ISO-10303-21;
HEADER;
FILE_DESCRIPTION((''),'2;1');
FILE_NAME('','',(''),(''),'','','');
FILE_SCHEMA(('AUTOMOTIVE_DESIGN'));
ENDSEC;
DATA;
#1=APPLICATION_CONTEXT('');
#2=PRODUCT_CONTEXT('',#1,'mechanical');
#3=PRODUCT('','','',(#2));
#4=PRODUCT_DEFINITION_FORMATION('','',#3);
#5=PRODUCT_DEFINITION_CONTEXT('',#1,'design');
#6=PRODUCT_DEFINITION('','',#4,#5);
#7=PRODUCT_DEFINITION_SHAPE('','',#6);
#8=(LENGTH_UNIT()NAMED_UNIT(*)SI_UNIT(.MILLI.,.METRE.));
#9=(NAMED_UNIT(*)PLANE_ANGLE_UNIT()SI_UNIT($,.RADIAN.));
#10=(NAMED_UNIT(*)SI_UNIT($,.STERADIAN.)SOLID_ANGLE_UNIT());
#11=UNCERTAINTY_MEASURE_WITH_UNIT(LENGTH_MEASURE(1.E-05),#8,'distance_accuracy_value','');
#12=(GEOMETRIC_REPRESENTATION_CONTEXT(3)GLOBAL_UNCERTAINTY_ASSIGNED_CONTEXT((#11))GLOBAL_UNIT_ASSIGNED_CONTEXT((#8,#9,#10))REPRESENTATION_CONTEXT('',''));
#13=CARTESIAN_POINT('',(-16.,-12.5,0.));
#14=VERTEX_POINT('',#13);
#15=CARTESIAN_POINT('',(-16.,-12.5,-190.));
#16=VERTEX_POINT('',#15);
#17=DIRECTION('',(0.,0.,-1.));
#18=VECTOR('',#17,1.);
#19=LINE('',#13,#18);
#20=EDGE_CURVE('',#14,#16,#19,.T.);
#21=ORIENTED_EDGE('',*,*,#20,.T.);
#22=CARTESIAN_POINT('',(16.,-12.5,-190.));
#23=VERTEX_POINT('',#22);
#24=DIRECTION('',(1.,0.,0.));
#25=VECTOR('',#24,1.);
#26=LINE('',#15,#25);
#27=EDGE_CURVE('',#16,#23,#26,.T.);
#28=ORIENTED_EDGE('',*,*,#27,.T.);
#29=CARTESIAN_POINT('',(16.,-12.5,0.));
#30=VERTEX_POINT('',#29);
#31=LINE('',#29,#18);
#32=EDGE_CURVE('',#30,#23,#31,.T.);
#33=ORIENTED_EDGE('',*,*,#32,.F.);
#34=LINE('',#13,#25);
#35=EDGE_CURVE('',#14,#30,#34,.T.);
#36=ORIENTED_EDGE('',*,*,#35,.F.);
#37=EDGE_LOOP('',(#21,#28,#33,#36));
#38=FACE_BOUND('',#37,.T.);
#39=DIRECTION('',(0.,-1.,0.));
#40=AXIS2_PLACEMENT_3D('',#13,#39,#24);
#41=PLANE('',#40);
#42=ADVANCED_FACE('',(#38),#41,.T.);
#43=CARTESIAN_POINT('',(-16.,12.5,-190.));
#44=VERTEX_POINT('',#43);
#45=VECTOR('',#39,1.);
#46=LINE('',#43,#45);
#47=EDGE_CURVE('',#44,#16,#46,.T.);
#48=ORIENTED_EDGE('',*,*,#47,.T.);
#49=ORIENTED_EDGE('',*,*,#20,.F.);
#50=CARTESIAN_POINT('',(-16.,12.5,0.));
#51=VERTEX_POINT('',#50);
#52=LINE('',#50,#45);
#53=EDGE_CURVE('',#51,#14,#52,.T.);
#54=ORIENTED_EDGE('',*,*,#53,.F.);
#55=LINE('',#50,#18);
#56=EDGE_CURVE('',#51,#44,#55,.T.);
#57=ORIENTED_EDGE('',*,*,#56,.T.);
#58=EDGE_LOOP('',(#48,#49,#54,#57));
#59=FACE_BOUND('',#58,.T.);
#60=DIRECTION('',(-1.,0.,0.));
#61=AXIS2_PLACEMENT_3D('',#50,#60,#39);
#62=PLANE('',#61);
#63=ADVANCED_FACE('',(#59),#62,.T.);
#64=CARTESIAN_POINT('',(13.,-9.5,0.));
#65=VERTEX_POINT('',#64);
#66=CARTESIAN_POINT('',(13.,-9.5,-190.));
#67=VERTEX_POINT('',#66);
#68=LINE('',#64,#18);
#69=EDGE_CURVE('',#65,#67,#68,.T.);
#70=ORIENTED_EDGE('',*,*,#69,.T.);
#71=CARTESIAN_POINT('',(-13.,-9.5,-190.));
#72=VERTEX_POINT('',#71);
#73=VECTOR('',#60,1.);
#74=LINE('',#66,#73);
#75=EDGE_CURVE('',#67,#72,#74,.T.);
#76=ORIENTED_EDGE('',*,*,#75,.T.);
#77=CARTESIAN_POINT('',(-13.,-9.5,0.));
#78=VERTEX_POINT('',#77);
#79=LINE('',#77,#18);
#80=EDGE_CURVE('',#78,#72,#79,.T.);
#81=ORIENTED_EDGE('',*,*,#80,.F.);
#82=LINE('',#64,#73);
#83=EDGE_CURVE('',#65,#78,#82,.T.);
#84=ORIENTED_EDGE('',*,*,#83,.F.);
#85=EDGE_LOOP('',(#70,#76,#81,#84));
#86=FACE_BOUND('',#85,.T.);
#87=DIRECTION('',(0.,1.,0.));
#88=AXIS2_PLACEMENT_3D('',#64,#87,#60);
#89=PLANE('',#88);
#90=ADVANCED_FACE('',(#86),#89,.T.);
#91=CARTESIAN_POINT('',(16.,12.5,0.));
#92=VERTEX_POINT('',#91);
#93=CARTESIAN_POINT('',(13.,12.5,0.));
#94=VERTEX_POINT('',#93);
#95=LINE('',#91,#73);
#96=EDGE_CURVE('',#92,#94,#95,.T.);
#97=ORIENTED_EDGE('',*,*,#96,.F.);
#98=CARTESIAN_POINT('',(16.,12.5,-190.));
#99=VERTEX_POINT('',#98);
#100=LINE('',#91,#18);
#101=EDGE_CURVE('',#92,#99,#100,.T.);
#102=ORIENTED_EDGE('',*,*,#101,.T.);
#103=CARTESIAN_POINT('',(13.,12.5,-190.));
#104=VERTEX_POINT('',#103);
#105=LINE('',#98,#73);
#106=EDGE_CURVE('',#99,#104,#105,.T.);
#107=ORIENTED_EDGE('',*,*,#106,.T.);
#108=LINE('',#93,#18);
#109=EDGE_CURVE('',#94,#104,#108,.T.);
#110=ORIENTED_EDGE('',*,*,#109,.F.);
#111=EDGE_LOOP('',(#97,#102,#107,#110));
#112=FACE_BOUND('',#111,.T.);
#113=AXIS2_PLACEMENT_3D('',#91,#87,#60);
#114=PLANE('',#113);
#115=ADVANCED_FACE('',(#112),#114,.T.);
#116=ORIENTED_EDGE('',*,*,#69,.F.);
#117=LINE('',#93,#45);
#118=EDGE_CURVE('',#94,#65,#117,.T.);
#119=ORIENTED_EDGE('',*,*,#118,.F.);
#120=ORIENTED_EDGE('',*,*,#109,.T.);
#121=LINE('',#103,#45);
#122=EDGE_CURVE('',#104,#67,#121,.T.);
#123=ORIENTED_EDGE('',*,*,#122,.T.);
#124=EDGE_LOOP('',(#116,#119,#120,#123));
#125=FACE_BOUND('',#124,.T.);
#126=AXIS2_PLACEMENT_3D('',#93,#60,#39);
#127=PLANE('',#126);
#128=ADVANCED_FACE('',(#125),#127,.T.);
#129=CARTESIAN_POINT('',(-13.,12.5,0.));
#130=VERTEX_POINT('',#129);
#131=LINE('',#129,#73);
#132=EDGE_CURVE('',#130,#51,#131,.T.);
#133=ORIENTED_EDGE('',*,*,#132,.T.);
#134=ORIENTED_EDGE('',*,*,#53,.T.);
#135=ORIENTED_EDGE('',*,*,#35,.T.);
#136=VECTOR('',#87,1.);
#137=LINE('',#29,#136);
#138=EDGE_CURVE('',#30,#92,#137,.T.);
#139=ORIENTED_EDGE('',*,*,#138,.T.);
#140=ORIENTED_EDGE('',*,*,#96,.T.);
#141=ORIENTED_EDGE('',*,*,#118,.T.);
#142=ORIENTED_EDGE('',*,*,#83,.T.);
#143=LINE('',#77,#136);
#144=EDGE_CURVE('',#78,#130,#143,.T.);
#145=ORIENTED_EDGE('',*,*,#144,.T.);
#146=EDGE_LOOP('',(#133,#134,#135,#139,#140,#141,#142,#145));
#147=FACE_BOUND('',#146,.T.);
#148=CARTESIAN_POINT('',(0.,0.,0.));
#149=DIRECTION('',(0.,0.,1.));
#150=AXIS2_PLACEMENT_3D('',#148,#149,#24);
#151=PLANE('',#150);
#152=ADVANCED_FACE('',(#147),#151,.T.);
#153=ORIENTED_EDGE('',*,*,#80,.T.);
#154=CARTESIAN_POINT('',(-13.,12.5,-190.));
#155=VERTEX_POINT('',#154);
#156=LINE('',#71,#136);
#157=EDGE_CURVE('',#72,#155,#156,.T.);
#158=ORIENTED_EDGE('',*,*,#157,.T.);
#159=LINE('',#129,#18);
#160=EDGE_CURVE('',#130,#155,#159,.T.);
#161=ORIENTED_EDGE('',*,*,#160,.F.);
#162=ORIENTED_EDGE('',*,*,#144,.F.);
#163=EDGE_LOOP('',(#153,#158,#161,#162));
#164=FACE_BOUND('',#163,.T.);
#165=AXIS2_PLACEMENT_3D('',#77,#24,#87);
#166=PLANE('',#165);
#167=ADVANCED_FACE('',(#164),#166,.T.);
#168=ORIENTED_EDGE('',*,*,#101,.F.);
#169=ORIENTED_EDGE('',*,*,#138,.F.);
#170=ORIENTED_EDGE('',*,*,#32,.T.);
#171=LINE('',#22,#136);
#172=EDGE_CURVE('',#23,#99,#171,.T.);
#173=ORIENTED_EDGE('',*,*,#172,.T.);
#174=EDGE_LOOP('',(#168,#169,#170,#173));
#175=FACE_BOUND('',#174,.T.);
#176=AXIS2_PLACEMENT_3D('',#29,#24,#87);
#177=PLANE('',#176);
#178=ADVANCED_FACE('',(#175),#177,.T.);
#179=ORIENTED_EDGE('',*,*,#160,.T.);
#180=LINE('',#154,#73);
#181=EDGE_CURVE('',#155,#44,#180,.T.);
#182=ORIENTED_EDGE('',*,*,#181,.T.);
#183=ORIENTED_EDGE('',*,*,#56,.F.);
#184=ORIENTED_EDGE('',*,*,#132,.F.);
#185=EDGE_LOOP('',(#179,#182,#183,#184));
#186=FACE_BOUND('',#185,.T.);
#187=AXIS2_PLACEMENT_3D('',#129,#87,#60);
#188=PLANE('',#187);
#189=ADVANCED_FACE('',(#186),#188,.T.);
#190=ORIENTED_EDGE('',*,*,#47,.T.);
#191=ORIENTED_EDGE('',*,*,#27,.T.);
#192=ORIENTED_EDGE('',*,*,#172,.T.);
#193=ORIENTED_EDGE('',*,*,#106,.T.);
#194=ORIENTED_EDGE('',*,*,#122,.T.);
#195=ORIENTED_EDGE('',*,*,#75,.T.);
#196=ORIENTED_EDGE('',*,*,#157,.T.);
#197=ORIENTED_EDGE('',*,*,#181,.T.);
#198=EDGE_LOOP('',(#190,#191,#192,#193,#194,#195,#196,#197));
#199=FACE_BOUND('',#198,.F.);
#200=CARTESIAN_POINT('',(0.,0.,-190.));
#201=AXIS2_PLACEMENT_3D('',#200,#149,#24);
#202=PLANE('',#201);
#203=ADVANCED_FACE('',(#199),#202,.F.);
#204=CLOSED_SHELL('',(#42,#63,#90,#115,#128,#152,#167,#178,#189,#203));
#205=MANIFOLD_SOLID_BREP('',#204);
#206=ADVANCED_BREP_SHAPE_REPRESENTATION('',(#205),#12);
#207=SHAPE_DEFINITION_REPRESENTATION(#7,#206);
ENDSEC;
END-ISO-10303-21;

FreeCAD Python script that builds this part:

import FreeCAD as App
import Part
import Sketcher
from FreeCAD import Vector


def add_polygon(sketch, points):
    """Adds a closed chain of lines whose ends are joined by coincident constraints."""
    first, n = sketch.GeometryCount, len(points)
    for a, b in zip(points, points[1:] + points[:1]):
        sketch.addGeometry(Part.LineSegment(App.Vector(*a, 0), App.Vector(*b, 0)), False)
    for i in range(n):
        sketch.addConstraint(Sketcher.Constraint("Coincident", first + i, 2, first + (i + 1) % n, 1))

doc = App.newDocument("Part")
params = doc.addObject("Spreadsheet::Sheet", "Params")
for row, (alias, value) in enumerate([
    ("sketch1_width", "32 mm"),
    ("sketch1_width2", "3 mm"),
    ("sketch1_height", "25 mm"),
    ("sketch1_height2", "22 mm"),
    ("pad1_length", "190 mm"),
], start=1):
    params.set(f"A{row}", alias)
    params.set(f"B{row}", "=" + value)
    params.setAlias(f"B{row}", alias)

body = doc.addObject("PartDesign::Body", "Body")

sketch1 = body.newObject("Sketcher::SketchObject", "Sketch")
sketch1.AttachmentSupport = (doc.getObject("XY_Plane"), [""])
sketch1.MapMode = "FlatFace"
add_polygon(sketch1, [(-16, 12.5), (-16, -12.5), (16, -12.5), (16, 12.5), (13, 12.5), (13, -9.5), (-13, -9.5), (-13, 12.5)])
sketch1.addConstraint(Sketcher.Constraint("Vertical", 0))
sketch1.addConstraint(Sketcher.Constraint("Horizontal", 1))
sketch1.addConstraint(Sketcher.Constraint("Vertical", 2))
sketch1.addConstraint(Sketcher.Constraint("Horizontal", 3))
sketch1.addConstraint(Sketcher.Constraint("Vertical", 4))
sketch1.addConstraint(Sketcher.Constraint("Horizontal", 5))
sketch1.addConstraint(Sketcher.Constraint("Vertical", 6))
sketch1.addConstraint(Sketcher.Constraint("Horizontal", 7))
sketch1.addConstraint(Sketcher.Constraint("Symmetric", 0, 2, 2, 2, -1, 1))
sketch1.addConstraint(Sketcher.Constraint("Symmetric", 3, 2, 6, 2, -2))
sketch1.addConstraint(Sketcher.Constraint("DistanceX", 1, 1, 1, 2, 32.0))
sketch1.addConstraint(Sketcher.Constraint("DistanceX", 3, 2, 3, 1, 3.0))
sketch1.addConstraint(Sketcher.Constraint("DistanceY", 0, 2, 0, 1, 25.0))
sketch1.addConstraint(Sketcher.Constraint("DistanceY", 4, 2, 4, 1, 22.0))
sketch1.setExpression("Constraints[18]", "Params.sketch1_width")
sketch1.setExpression("Constraints[19]", "Params.sketch1_width2")
sketch1.setExpression("Constraints[20]", "Params.sketch1_height")
sketch1.setExpression("Constraints[21]", "Params.sketch1_height2")
pad1 = body.newObject("PartDesign::Pad", "Pad")
pad1.Profile = sketch1
pad1.setExpression("Length", "Params.pad1_length")
pad1.Reversed = True

doc.recompute()
